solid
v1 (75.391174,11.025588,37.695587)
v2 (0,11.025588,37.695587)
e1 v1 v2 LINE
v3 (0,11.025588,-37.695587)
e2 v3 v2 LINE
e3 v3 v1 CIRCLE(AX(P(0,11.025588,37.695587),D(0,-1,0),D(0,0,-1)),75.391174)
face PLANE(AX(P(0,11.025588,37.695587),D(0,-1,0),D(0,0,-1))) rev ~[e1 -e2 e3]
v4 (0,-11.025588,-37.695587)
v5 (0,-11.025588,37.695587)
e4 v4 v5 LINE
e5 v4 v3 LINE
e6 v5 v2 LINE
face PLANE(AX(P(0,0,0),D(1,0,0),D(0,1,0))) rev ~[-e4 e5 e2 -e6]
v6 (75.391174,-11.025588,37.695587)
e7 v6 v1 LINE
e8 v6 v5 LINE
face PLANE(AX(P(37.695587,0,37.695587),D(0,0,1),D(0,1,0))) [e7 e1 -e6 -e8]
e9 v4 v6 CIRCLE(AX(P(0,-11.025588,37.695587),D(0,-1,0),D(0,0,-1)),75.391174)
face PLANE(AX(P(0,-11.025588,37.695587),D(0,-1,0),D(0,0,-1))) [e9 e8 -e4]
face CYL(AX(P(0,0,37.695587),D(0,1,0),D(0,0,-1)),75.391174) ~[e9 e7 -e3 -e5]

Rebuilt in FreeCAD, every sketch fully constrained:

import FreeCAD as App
import Part
import Sketcher
from FreeCAD import Vector

doc = App.newDocument("Part")
body = doc.addObject("PartDesign::Body", "Body")

# Sketch on YZ plane
sketch1 = doc.addObject("Sketcher::SketchObject", "Sketch")
body.addObject(sketch1)
sketch1.AttachmentSupport = (doc.YZ_Plane, [""])
sketch1.MapMode = "FlatFace"
sketch1.addGeometry(Part.LineSegment(Vector(-11, 38, 0), Vector(-11, -38, 0)), False)
sketch1.addGeometry(Part.LineSegment(Vector(-11, -38, 0), Vector(11, -38, 0)), False)
sketch1.addGeometry(Part.LineSegment(Vector(11, -38, 0), Vector(11, 38, 0)), False)
sketch1.addGeometry(Part.LineSegment(Vector(11, 38, 0), Vector(-11, 38, 0)), False)
sketch1.addGeometry(Part.LineSegment(Vector(11, 38, 0), Vector(-11, 38, 0)), True)  # axis
sketch1.addConstraint(Sketcher.Constraint("Coincident", 0, 2, 1, 1))
sketch1.addConstraint(Sketcher.Constraint("Coincident", 1, 2, 2, 1))
sketch1.addConstraint(Sketcher.Constraint("Coincident", 2, 2, 3, 1))
sketch1.addConstraint(Sketcher.Constraint("Coincident", 3, 2, 0, 1))
sketch1.addConstraint(Sketcher.Constraint("Vertical", 0))
sketch1.addConstraint(Sketcher.Constraint("Horizontal", 1))
sketch1.addConstraint(Sketcher.Constraint("Vertical", 2))
sketch1.addConstraint(Sketcher.Constraint("Horizontal", 3))
sketch1.addConstraint(Sketcher.Constraint("Horizontal", 4))
sketch1.addConstraint(Sketcher.Constraint("Coincident", 4, 1, 2, 2))
sketch1.addConstraint(Sketcher.Constraint("Symmetric", 0, 2, 2, 2, -1, 1))
sketch1.addConstraint(Sketcher.Constraint("Vertical", 0, 2, 4, 2))
sketch1.addConstraint(Sketcher.Constraint("DistanceX", 1, 1, 1, 2, 22.051176))
sketch1.addConstraint(Sketcher.Constraint("DistanceY", 0, 2, 0, 1, 75.391174))
revolution = doc.addObject("PartDesign::Revolution", "Revolution")
body.addObject(revolution)
revolution.Profile = sketch1
revolution.ReferenceAxis = (sketch1, ["Axis0"])
revolution.Angle = 90

doc.recompute()
